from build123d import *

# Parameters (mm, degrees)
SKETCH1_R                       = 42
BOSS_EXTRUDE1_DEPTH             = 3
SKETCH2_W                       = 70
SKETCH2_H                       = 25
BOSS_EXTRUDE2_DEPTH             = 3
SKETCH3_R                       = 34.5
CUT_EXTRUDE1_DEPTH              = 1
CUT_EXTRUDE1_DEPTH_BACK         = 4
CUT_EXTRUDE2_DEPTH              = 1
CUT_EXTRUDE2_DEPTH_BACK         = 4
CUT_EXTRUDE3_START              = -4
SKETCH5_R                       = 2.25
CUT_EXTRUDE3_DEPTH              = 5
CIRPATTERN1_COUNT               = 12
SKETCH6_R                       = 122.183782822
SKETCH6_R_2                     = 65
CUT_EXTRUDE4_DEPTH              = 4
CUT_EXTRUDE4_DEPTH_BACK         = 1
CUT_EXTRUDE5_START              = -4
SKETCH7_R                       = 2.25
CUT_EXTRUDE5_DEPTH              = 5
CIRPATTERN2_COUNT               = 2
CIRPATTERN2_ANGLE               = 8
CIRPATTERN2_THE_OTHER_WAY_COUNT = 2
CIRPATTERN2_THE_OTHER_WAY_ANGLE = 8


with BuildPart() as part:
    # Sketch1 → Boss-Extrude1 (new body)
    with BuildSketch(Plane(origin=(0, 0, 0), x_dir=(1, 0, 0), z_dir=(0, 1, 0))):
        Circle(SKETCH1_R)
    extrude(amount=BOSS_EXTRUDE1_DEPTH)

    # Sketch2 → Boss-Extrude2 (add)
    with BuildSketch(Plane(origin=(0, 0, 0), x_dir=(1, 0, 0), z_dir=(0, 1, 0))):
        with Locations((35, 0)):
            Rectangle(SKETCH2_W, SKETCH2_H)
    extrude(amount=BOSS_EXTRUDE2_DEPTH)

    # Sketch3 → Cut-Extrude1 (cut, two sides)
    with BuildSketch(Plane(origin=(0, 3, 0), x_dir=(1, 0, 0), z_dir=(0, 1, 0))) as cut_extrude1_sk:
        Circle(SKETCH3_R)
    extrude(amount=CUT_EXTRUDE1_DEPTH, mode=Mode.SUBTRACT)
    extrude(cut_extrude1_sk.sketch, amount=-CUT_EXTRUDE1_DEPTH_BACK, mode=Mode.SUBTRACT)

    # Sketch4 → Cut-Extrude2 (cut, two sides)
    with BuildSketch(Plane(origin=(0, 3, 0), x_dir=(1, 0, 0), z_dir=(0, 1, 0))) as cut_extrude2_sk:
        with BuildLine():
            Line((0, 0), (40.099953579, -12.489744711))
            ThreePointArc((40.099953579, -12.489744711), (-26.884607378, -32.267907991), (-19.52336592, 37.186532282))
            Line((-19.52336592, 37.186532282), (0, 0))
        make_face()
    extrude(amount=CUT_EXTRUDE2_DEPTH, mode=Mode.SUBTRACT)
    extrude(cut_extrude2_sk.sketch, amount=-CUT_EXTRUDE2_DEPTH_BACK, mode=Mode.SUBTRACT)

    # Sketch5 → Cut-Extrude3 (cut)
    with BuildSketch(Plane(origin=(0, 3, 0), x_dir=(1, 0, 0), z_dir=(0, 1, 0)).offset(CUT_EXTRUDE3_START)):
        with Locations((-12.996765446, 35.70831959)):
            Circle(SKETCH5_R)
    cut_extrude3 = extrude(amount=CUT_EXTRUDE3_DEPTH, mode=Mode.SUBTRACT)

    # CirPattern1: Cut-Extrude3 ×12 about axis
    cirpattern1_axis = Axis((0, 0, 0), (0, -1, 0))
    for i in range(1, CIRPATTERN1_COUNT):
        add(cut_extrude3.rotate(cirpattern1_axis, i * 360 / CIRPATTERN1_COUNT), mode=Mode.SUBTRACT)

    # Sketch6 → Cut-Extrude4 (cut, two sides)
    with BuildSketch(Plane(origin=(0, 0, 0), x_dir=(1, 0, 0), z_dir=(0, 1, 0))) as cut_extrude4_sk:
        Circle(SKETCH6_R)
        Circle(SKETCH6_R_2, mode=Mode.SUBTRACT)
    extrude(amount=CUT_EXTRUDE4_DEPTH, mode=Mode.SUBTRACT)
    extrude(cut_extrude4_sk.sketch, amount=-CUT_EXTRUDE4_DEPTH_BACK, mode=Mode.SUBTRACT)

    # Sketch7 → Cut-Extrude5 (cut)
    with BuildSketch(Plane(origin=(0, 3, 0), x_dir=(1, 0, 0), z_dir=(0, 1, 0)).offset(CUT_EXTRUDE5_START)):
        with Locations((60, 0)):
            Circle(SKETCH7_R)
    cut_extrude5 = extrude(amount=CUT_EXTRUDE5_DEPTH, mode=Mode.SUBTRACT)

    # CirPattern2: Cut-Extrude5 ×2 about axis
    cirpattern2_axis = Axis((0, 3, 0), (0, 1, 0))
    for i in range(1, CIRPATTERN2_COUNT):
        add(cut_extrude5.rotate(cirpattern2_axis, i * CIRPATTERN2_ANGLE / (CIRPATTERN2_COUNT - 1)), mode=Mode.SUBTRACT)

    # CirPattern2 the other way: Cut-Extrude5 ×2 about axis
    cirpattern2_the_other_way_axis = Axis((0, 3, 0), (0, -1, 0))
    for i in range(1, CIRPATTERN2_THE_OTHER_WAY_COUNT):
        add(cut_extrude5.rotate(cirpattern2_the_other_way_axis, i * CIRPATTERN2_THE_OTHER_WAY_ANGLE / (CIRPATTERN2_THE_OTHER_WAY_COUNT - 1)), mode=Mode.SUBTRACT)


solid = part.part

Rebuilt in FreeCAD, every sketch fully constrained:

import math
import FreeCAD as App
import Part
import Sketcher
Q = App.Units.Quantity

doc = App.newDocument("Part")
body = doc.addObject("PartDesign::Body", "Body")

sketch1 = body.newObject("Sketcher::SketchObject", "Sketch")
sketch1.AttachmentSupport = (doc.getObject("XZ_Plane"), [""])
sketch1.MapMode = "FlatFace"
sketch1.addGeometry(Part.Circle(App.Vector(0, 0, 0), App.Vector(0, 0, 1), 42), False)
sketch1.addConstraint([
    Sketcher.Constraint("Coincident", 0, 3, -1, 1),
    Sketcher.Constraint("Diameter", 0, Q("84 mm")),
])
pad1 = body.newObject("PartDesign::Pad", "Pad")
pad1.Profile = sketch1
pad1.Length = 3
pad1.Reversed = True

sketch2 = body.newObject("Sketcher::SketchObject", "Sketch001")
sketch2.AttachmentSupport = (doc.getObject("XZ_Plane"), [""])
sketch2.MapMode = "FlatFace"
sketch2.addGeometry([
    Part.LineSegment(App.Vector(0, -12, 0), App.Vector(0, 12, 0)),
    Part.LineSegment(App.Vector(0, 12, 0), App.Vector(70, 12, 0)),
    Part.LineSegment(App.Vector(70, 12, 0), App.Vector(70, -12, 0)),
    Part.LineSegment(App.Vector(70, -12, 0), App.Vector(0, -12, 0)),
], False)
sketch2.addConstraint([
    Sketcher.Constraint("Coincident", 0, 2, 1, 1),
    Sketcher.Constraint("Coincident", 1, 2, 2, 1),
    Sketcher.Constraint("Coincident", 2, 2, 3, 1),
    Sketcher.Constraint("Coincident", 3, 2, 0, 1),
    Sketcher.Constraint("Vertical", 0),
    Sketcher.Constraint("Horizontal", 1),
    Sketcher.Constraint("Vertical", 2),
    Sketcher.Constraint("Horizontal", 3),
    Sketcher.Constraint("Symmetric", 0, 2, 3, 2, -1, 1),
    Sketcher.Constraint("DistanceX", 1, 1, 1, 2, Q("70 mm")),
    Sketcher.Constraint("DistanceY", 0, 1, 0, 2, Q("25 mm")),
])
pad2 = body.newObject("PartDesign::Pad", "Pad001")
pad2.Profile = sketch2
pad2.Length = 3
pad2.Reversed = True

sketch3 = body.newObject("Sketcher::SketchObject", "Sketch002")
sketch3.AttachmentSupport = (doc.getObject("XZ_Plane"), [""])
sketch3.MapMode = "FlatFace"
sketch3.AttachmentOffset = App.Placement(App.Vector(0, 0, -3), App.Rotation())
sketch3.addGeometry(Part.Circle(App.Vector(0, 0, 0), App.Vector(0, 0, 1), 34), False)
sketch3.addConstraint([
    Sketcher.Constraint("Coincident", 0, 3, -1, 1),
    Sketcher.Constraint("Diameter", 0, Q("69 mm")),
])
pocket1 = body.newObject("PartDesign::Pocket", "Pocket")
pocket1.Profile = sketch3
pocket1.Type = "ThroughAll"
pocket1.Midplane = True

sketch4 = body.newObject("Sketcher::SketchObject", "Sketch003")
sketch4.AttachmentSupport = (doc.getObject("XZ_Plane"), [""])
sketch4.MapMode = "FlatFace"
sketch4.AttachmentOffset = App.Placement(App.Vector(0, 0, -3), App.Rotation())
sketch4.addGeometry([
    Part.LineSegment(App.Vector(40, 12, 0), App.Vector(0, 0, 0)),
    Part.LineSegment(App.Vector(0, 0, 0), App.Vector(-20, -37, 0)),
    Part.ArcOfCircle(Part.Circle(App.Vector(0, 0, 0), App.Vector(0, 0, 1), 42), math.radians(17), math.radians(242)),
], False)
sketch4.addConstraint([
    Sketcher.Constraint("Coincident", 0, 2, 1, 1),
    Sketcher.Constraint("Coincident", 1, 2, 2, 2),
    Sketcher.Constraint("Coincident", 2, 1, 0, 1),
    Sketcher.Constraint("Coincident", 2, 3, -1, 1),
    Sketcher.Constraint("Coincident", 0, 2, -1, 1),
    Sketcher.Constraint("Radius", 2, Q("42 mm")),
    Sketcher.Constraint("Angle", 0, Q("-162.7 deg")),
    Sketcher.Constraint("Angle", 1, Q("-117.7 deg")),
])
pocket2 = body.newObject("PartDesign::Pocket", "Pocket001")
pocket2.Profile = sketch4
pocket2.Type = "ThroughAll"
pocket2.Midplane = True

sketch5 = body.newObject("Sketcher::SketchObject", "Sketch004")
sketch5.AttachmentSupport = (doc.getObject("XZ_Plane"), [""])
sketch5.MapMode = "FlatFace"
sketch5.AttachmentOffset = App.Placement(App.Vector(0, 0, 1), App.Rotation())
sketch5.addGeometry(Part.Circle(App.Vector(-13, -35.7, 0), App.Vector(0, 0, 1), 2.2), False)
sketch5.addConstraint([
    Sketcher.Constraint("Diameter", 0, Q("4.5 mm")),
    Sketcher.Constraint("DistanceY", 0, 3, -1, 1, Q("35.70832 mm")),
    Sketcher.Constraint("DistanceX", 0, 3, -1, 1, Q("12.996765 mm")),
])
pocket3 = body.newObject("PartDesign::Pocket", "Pocket002")
pocket3.Profile = sketch5
pocket3.Length = 5
doc.recompute()

polarpattern = body.newObject("PartDesign::PolarPattern", "PolarPattern")
polarpattern.Originals = [pocket3]
polarpattern.Axis = (doc.getObject("Y_Axis"), [""])
polarpattern.Angle = 360
polarpattern.Occurrences = 12
body.Tip = polarpattern

sketch6 = body.newObject("Sketcher::SketchObject", "Sketch005")
sketch6.AttachmentSupport = (doc.getObject("XZ_Plane"), [""])
sketch6.MapMode = "FlatFace"
sketch6.addGeometry([
    Part.Circle(App.Vector(0, 0, 0), App.Vector(0, 0, 1), 122),
    Part.Circle(App.Vector(0, 0, 0), App.Vector(0, 0, 1), 65),
], False)
sketch6.addConstraint([
    Sketcher.Constraint("Coincident", 0, 3, -1, 1),
    Sketcher.Constraint("Coincident", 1, 3, -1, 1),
    Sketcher.Constraint("Diameter", 1, Q("130 mm")),
    Sketcher.Constraint("Diameter", 0, Q("244.367566 mm")),
])
pocket4 = body.newObject("PartDesign::Pocket", "Pocket003")
pocket4.Profile = sketch6
pocket4.Type = "ThroughAll"
pocket4.Midplane = True

sketch7 = body.newObject("Sketcher::SketchObject", "Sketch006")
sketch7.AttachmentSupport = (doc.getObject("XZ_Plane"), [""])
sketch7.MapMode = "FlatFace"
sketch7.AttachmentOffset = App.Placement(App.Vector(0, 0, 1), App.Rotation())
sketch7.addGeometry(Part.Circle(App.Vector(60, 0, 0), App.Vector(0, 0, 1), 2.2), False)
sketch7.addConstraint([
    Sketcher.Constraint("PointOnObject", 0, 3, -1),
    Sketcher.Constraint("Diameter", 0, Q("4.5 mm")),
    Sketcher.Constraint("DistanceX", -1, 1, 0, 3, Q("60 mm")),
])
pocket5 = body.newObject("PartDesign::Pocket", "Pocket004")
pocket5.Profile = sketch7
pocket5.Length = 5
doc.recompute()

polarpattern2 = body.newObject("PartDesign::PolarPattern", "PolarPattern001")
polarpattern2.Originals = [pocket5]
polarpattern2.Axis = (doc.getObject("Y_Axis"), [""])
polarpattern2.Angle = 8
polarpattern2.Occurrences = 2
body.Tip = polarpattern2
doc.recompute()

polarpattern3 = body.newObject("PartDesign::PolarPattern", "PolarPattern002")
polarpattern3.Originals = [pocket5]
polarpattern3.Axis = (doc.getObject("Y_Axis"), [""])
polarpattern3.Angle = 8
polarpattern3.Occurrences = 2
polarpattern3.Reversed = True
body.Tip = polarpattern3

doc.recompute()
